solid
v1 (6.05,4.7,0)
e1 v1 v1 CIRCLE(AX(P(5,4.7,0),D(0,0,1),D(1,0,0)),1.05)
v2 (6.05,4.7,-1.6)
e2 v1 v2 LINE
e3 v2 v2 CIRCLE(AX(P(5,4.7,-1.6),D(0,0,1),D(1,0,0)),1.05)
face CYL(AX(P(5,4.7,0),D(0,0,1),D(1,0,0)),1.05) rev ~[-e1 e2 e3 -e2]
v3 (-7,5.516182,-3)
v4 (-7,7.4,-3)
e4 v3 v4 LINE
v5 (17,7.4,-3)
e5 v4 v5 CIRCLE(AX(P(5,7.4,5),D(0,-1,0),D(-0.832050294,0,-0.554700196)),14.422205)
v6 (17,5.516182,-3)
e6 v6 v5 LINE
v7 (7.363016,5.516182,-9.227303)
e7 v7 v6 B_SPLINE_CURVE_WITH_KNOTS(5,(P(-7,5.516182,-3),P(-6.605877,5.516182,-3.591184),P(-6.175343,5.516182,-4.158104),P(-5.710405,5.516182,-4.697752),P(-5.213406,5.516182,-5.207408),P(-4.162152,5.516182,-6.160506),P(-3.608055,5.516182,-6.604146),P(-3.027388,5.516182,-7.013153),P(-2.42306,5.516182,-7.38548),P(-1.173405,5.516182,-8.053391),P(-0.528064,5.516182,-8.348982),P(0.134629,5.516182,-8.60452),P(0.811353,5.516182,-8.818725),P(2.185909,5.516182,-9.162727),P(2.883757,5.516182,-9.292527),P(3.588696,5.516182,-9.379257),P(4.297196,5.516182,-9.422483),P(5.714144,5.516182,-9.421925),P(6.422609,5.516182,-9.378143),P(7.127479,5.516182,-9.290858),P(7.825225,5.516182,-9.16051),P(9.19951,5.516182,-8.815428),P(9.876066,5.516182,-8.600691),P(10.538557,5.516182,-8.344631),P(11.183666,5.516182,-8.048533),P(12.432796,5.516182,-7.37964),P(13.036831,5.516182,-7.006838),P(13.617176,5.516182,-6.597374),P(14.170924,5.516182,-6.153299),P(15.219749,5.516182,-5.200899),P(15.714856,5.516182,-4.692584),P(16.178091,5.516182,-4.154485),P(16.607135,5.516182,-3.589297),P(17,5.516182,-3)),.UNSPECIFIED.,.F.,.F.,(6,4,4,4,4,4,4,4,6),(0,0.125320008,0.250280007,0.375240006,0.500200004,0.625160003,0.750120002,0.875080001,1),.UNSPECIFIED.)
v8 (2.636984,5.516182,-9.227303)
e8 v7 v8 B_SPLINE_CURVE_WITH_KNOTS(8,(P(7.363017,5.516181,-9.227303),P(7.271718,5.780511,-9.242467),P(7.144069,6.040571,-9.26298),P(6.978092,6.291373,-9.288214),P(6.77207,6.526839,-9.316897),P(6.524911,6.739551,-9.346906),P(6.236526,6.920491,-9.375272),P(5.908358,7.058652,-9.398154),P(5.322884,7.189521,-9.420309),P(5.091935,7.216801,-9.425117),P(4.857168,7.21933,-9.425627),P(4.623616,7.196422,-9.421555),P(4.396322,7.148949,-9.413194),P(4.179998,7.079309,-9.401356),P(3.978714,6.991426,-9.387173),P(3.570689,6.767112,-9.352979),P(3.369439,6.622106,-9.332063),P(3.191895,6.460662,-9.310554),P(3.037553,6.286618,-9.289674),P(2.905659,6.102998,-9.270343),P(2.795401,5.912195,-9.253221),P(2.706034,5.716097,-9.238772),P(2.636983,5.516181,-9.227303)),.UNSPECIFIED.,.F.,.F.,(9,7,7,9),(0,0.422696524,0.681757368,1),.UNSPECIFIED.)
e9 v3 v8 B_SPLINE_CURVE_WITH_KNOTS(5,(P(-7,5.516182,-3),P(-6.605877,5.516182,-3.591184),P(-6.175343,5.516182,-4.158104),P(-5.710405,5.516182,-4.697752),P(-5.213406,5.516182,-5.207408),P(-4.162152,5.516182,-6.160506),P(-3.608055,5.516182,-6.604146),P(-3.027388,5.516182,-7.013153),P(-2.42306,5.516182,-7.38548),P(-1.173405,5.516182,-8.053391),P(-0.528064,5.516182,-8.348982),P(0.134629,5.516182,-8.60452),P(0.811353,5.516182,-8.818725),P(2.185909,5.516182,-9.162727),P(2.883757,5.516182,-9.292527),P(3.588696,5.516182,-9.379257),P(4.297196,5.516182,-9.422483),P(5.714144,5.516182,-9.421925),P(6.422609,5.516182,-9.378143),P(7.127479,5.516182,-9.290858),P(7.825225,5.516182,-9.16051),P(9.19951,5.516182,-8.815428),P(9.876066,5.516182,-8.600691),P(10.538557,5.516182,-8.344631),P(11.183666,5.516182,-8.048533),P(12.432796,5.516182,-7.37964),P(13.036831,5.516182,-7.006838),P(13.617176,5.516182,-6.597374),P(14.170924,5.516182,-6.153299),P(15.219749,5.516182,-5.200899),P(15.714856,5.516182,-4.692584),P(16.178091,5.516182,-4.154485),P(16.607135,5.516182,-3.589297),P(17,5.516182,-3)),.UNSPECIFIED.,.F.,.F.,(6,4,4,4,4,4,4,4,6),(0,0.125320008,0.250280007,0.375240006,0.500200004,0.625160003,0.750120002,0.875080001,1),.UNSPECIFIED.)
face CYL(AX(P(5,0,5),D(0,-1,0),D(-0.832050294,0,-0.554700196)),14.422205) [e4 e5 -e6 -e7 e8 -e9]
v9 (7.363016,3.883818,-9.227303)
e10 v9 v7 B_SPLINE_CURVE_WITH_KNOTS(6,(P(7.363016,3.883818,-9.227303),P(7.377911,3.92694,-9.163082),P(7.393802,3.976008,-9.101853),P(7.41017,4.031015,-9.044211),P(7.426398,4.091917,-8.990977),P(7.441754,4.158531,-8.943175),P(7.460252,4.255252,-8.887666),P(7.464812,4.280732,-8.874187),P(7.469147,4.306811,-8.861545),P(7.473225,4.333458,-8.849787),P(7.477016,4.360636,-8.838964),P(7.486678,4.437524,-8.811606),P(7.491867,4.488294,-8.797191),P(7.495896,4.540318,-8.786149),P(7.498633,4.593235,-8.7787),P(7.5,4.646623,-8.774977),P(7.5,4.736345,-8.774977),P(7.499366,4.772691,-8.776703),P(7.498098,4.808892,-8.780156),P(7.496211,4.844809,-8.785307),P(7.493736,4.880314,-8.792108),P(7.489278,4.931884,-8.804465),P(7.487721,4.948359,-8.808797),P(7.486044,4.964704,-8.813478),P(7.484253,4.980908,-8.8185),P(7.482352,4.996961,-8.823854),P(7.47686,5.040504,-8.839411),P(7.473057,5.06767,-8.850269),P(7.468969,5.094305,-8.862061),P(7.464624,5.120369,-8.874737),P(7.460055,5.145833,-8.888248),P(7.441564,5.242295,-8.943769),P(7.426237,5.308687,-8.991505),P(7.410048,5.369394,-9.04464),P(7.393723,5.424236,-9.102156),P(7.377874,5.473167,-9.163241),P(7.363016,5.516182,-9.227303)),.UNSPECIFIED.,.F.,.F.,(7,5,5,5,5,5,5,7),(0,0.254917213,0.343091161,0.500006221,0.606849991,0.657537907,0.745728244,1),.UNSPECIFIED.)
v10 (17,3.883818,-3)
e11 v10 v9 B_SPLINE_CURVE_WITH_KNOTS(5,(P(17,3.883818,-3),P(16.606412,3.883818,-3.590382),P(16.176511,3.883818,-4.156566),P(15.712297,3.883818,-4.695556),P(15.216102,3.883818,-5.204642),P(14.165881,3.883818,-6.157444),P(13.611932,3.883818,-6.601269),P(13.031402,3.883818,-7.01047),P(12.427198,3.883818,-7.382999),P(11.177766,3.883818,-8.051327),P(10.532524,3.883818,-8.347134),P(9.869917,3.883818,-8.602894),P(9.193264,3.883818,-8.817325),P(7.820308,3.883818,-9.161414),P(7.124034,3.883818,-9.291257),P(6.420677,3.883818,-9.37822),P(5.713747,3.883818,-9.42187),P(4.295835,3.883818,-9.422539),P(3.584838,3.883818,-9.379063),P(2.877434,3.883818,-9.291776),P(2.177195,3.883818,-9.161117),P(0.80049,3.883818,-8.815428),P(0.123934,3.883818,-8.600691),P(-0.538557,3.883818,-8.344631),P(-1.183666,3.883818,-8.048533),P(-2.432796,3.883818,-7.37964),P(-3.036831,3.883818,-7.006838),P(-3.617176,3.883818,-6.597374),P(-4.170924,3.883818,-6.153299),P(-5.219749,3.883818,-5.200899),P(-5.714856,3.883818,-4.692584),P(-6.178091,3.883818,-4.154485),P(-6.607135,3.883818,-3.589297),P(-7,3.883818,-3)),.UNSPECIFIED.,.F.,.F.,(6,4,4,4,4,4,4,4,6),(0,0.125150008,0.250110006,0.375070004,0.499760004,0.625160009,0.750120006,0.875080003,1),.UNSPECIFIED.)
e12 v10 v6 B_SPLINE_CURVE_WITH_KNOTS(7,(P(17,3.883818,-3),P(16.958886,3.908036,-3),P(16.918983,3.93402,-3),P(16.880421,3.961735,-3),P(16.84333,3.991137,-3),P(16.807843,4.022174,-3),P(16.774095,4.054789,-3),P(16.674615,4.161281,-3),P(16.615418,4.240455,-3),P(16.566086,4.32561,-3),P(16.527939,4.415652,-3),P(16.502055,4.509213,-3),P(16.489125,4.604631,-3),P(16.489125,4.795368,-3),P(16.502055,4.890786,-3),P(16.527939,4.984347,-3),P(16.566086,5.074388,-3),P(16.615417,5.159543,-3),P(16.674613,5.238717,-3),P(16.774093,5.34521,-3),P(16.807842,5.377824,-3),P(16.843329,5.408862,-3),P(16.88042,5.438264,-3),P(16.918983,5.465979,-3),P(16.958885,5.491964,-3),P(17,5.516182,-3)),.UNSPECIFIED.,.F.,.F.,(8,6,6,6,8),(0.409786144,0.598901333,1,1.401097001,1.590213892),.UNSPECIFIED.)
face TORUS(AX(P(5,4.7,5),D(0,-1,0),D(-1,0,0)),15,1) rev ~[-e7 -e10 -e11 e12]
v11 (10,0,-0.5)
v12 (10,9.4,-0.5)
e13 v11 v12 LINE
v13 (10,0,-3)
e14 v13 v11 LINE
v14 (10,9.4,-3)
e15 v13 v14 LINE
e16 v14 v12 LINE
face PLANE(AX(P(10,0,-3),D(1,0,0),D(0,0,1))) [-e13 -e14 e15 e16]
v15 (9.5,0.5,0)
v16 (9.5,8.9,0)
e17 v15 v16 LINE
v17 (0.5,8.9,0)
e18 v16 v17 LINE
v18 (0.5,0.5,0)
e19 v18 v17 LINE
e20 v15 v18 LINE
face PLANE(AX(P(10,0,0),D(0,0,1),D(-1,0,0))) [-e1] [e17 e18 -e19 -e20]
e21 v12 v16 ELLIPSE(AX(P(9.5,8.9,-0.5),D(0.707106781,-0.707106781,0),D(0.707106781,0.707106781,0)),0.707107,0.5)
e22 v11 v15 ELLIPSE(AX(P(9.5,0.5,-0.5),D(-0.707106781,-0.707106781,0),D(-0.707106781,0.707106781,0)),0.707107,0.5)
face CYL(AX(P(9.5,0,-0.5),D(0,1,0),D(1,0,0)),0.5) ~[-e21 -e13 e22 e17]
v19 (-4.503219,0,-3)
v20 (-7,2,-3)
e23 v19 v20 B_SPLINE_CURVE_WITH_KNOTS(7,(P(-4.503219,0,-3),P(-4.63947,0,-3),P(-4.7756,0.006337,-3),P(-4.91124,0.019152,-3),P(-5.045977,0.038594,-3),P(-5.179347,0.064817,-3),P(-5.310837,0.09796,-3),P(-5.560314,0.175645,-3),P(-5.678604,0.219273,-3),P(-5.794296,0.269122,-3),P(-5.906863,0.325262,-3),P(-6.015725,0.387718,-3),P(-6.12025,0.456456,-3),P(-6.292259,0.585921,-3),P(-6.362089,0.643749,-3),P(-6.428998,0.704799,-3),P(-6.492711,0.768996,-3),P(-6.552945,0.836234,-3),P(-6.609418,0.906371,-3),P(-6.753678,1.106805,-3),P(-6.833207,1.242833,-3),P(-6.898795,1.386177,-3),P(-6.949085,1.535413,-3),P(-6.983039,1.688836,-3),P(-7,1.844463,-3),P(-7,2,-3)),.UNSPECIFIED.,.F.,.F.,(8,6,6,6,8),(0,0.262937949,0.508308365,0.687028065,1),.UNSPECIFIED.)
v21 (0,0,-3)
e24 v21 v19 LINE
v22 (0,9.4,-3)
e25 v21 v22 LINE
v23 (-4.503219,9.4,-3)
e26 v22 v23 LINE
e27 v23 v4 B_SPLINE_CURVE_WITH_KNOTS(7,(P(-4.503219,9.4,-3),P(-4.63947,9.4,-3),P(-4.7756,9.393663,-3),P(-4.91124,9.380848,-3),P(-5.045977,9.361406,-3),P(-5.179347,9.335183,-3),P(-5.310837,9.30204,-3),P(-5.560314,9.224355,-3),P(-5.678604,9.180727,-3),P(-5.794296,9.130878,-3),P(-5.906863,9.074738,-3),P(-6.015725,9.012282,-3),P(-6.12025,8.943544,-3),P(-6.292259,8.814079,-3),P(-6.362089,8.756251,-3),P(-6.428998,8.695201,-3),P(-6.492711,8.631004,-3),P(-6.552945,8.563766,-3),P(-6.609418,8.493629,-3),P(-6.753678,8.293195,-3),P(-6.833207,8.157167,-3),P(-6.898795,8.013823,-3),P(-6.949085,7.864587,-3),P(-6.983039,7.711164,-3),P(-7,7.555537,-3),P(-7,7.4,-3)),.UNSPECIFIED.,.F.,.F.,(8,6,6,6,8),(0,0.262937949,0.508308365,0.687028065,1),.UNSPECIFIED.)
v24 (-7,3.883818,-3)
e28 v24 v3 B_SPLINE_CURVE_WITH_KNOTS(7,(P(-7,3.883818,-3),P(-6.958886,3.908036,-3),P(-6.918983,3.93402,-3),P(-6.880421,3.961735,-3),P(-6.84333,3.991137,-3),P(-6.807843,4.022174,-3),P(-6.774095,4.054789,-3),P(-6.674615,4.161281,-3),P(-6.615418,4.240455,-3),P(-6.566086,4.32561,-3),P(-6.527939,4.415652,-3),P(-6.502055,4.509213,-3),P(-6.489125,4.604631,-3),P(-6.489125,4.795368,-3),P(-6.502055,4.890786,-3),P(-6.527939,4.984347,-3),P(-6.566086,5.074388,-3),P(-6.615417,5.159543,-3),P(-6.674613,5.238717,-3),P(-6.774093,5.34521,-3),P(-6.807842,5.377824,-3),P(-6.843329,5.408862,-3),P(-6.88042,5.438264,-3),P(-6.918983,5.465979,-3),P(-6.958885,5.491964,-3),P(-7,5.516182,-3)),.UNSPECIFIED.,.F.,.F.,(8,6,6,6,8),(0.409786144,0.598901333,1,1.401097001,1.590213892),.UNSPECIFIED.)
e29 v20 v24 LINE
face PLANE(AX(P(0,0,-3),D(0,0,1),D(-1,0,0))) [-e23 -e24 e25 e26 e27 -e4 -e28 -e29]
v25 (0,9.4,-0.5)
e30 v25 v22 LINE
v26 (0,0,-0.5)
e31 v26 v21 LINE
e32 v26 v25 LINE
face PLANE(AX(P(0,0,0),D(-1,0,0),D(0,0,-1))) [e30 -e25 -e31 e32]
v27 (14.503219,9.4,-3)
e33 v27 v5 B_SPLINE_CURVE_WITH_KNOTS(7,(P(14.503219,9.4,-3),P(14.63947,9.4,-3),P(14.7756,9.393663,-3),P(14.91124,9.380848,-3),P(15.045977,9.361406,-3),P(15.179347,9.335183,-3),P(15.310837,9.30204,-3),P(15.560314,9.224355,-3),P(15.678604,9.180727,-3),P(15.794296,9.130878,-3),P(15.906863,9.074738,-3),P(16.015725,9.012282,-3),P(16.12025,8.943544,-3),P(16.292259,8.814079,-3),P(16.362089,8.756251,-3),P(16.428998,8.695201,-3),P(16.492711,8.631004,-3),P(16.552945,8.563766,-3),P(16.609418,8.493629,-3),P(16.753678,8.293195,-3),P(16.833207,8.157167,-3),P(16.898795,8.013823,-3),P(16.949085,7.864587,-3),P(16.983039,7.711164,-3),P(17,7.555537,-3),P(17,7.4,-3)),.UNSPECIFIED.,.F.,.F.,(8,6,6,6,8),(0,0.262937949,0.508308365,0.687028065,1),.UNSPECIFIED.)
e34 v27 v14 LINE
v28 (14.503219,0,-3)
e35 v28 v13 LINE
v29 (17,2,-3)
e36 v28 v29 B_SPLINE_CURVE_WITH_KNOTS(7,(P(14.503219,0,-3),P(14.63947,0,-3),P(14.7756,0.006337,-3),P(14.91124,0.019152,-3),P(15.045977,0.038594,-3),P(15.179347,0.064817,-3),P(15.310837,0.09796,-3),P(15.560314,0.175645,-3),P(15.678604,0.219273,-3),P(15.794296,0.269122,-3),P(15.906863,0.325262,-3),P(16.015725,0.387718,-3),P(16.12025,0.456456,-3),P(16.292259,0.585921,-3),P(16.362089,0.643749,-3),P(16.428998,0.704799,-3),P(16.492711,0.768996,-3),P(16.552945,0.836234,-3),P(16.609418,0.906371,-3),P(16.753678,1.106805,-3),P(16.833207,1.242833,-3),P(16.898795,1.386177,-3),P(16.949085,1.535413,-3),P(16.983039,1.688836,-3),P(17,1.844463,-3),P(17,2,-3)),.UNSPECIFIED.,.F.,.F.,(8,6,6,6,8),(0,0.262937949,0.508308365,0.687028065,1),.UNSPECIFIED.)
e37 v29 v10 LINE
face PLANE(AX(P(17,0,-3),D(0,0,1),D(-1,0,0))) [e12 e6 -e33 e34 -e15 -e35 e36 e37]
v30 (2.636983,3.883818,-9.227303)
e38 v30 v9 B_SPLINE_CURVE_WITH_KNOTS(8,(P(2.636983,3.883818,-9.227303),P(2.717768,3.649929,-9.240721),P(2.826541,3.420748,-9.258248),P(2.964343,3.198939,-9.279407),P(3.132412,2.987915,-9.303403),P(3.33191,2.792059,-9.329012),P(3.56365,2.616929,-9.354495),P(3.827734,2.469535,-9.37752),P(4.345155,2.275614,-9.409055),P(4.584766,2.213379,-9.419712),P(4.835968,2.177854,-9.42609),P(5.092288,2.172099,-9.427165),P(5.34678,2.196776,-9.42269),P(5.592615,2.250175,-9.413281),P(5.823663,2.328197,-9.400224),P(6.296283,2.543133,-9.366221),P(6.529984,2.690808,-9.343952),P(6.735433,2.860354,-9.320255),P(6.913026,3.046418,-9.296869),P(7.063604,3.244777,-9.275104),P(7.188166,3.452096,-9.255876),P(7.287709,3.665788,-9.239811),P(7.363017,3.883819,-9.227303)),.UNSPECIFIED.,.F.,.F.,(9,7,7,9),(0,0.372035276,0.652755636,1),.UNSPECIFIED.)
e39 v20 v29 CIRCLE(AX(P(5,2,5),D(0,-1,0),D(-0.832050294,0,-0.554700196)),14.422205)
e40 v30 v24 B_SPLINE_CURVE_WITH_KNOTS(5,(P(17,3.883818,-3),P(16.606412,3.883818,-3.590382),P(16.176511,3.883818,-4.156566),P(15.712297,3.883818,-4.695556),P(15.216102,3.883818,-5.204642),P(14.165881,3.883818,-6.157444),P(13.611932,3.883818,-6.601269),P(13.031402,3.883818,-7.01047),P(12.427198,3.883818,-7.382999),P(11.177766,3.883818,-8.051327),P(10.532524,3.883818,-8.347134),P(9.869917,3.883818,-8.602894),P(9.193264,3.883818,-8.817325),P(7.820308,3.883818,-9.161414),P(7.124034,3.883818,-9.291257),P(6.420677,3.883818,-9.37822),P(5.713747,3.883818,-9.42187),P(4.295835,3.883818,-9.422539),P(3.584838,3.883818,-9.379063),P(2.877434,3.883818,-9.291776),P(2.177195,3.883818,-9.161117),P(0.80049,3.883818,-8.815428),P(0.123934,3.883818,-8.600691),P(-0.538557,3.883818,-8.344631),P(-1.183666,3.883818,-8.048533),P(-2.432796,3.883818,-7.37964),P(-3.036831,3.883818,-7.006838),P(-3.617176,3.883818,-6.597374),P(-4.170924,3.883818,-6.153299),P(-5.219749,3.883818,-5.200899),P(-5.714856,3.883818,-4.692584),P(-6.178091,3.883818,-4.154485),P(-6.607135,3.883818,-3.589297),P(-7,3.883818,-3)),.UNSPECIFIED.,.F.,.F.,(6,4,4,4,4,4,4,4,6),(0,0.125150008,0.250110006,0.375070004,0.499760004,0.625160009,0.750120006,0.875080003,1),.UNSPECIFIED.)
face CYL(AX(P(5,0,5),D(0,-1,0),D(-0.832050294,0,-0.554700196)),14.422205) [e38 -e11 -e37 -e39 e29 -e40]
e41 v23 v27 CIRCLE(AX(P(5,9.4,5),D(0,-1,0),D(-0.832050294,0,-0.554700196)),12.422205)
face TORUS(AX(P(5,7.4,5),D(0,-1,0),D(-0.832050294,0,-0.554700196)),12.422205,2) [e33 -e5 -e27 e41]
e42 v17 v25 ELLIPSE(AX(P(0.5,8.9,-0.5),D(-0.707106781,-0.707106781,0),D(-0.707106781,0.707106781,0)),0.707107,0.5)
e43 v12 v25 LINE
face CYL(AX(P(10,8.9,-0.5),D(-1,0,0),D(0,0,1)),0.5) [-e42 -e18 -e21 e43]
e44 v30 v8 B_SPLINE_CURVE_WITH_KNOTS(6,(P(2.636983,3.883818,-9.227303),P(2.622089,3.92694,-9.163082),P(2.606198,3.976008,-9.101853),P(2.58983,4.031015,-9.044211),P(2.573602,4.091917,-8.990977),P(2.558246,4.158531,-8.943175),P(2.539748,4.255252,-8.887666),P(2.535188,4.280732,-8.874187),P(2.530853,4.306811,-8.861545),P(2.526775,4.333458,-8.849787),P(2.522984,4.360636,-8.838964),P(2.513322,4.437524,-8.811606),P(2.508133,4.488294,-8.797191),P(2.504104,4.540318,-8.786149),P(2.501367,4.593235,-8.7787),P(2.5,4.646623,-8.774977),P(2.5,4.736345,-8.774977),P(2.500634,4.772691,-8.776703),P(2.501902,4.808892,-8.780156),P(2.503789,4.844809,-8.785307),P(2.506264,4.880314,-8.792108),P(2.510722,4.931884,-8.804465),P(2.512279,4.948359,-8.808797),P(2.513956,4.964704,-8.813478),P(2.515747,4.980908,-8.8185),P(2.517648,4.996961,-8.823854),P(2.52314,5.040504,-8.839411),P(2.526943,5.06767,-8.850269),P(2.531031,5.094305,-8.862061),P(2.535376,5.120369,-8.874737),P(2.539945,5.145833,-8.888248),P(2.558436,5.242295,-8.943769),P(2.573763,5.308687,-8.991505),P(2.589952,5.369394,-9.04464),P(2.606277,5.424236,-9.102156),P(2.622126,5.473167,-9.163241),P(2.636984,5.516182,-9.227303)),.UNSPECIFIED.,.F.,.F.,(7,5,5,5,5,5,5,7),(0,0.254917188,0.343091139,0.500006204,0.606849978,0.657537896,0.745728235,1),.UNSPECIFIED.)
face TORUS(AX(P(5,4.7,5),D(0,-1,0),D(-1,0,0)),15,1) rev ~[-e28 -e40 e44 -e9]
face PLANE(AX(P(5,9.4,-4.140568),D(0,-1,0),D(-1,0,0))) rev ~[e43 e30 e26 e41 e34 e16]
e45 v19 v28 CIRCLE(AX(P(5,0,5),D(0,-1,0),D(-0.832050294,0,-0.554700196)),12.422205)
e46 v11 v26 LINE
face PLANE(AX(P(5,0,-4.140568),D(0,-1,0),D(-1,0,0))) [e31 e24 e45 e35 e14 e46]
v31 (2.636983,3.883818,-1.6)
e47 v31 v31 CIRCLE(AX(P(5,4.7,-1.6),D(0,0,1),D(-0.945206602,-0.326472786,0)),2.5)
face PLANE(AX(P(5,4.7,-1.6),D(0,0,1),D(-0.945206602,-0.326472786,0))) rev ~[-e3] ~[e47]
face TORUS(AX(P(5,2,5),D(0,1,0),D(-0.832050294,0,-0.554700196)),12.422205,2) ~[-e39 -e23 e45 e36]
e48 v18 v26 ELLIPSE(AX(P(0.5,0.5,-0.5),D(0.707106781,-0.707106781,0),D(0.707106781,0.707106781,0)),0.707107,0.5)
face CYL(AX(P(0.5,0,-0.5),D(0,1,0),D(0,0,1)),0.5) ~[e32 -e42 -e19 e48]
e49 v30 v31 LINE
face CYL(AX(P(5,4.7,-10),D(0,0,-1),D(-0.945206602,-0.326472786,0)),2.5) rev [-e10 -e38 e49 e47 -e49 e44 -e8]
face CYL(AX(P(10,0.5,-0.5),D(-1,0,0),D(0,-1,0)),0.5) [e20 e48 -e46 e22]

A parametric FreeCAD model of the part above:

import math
import FreeCAD as App
import Part
import Sketcher


def edges_at(feature, points):
    """Names of the edges that pass closest to the given points."""
    edges = feature.Shape.Edges
    near = lambda p: min(range(len(edges)), key=lambda i: edges[i].distToShape(Part.Vertex(*p))[0])
    return sorted({f"Edge{near(p) + 1}" for p in points})

doc = App.newDocument("Part")
body = doc.addObject("PartDesign::Body", "Body")

sketch1 = body.newObject("Sketcher::SketchObject", "Sketch")
sketch1.AttachmentSupport = (doc.getObject("XZ_Plane"), [""])
sketch1.MapMode = "FlatFace"
sketch1.addGeometry([
    Part.ArcOfCircle(Part.Circle(App.Vector(5, 5, 0), App.Vector(0, 0, 1), 14.422205), math.radians(-146.309932), math.radians(-33.690068)),
    Part.LineSegment(App.Vector(-7, -3, 0), App.Vector(0, -3, 0)),
    Part.LineSegment(App.Vector(0, -3, 0), App.Vector(0, 0, 0)),
    Part.LineSegment(App.Vector(0, 0, 0), App.Vector(10, 0, 0)),
    Part.LineSegment(App.Vector(10, 0, 0), App.Vector(10, -3, 0)),
    Part.LineSegment(App.Vector(10, -3, 0), App.Vector(17, -3, 0)),
], False)
sketch1.addConstraint([
    Sketcher.Constraint("Coincident", 0, 1, 1, 1),
    Sketcher.Constraint("Coincident", 1, 2, 2, 1),
    Sketcher.Constraint("Coincident", 2, 2, 3, 1),
    Sketcher.Constraint("Coincident", 3, 2, 4, 1),
    Sketcher.Constraint("Coincident", 4, 2, 5, 1),
    Sketcher.Constraint("Coincident", 5, 2, 0, 2),
    Sketcher.Constraint("Horizontal", 1),
    Sketcher.Constraint("Vertical", 2),
    Sketcher.Constraint("Horizontal", 3),
    Sketcher.Constraint("Vertical", 4),
    Sketcher.Constraint("Horizontal", 5),
    Sketcher.Constraint("Coincident", 2, 2, -1, 1),
    Sketcher.Constraint("Horizontal", 1, 2, 4, 2),
    Sketcher.Constraint("Equal", 1, 5),
    Sketcher.Constraint("DistanceX", 1, 1, 1, 2, 7.0),
    Sketcher.Constraint("DistanceX", 3, 1, 3, 2, 10.0),
    Sketcher.Constraint("DistanceY", 2, 1, 2, 2, 3.0),
    Sketcher.Constraint("DistanceY", -1, 1, 0, 3, 5.0),
])
pad1 = body.newObject("PartDesign::Pad", "Pad")
pad1.Profile = sketch1
pad1.Length = 9.4
pad1.Reversed = True

sketch2 = body.newObject("Sketcher::SketchObject", "Sketch001")
sketch2.AttachmentSupport = (doc.getObject("XY_Plane"), [""])
sketch2.MapMode = "FlatFace"
sketch2.AttachmentOffset = App.Placement(App.Vector(0, 0, 5), App.Rotation())
sketch2.addGeometry(Part.Circle(App.Vector(-10, 4.7, 0), App.Vector(0, 0, 1), 1), False)
sketch2.addGeometry(Part.LineSegment(App.Vector(5, 4.7, 0), App.Vector(5, -5.3, 0)), True)
sketch2.addConstraint([
    Sketcher.Constraint("Vertical", 1),
    Sketcher.Constraint("Horizontal", 0, 3, 1, 1),
    Sketcher.Constraint("Diameter", 0, 2.0),
    Sketcher.Constraint("DistanceY", 1, 2, 1, 1, 10.0),
    Sketcher.Constraint("DistanceX", 0, 3, -1, 1, 10.0),
    Sketcher.Constraint("DistanceX", -1, 1, 1, 1, 5.0),
    Sketcher.Constraint("DistanceY", -1, 1, 0, 3, 4.7),
])
groove = body.newObject("PartDesign::Groove", "Groove")
groove.Profile = sketch2
groove.ReferenceAxis = (sketch2, ["Axis0"])
groove.Angle = 360

sketch3 = body.newObject("Sketcher::SketchObject", "Sketch002")
sketch3.AttachmentSupport = (doc.getObject("XY_Plane"), [""])
sketch3.MapMode = "FlatFace"
sketch3.addGeometry(Part.Circle(App.Vector(5, 4.7, 0), App.Vector(0, 0, 1), 1.05), False)
sketch3.addConstraint([
    Sketcher.Constraint("Diameter", 0, 2.1),
    Sketcher.Constraint("DistanceX", -1, 1, 0, 3, 5.0),
    Sketcher.Constraint("DistanceY", -1, 1, 0, 3, 4.7),
])
pocket1 = body.newObject("PartDesign::Pocket", "Pocket")
pocket1.Profile = sketch3
pocket1.Type = "ThroughAll"

sketch4 = body.newObject("Sketcher::SketchObject", "Sketch003")
sketch4.AttachmentSupport = (doc.getObject("XY_Plane"), [""])
sketch4.MapMode = "FlatFace"
sketch4.AttachmentOffset = App.Placement(App.Vector(0, 0, -10), App.Rotation())
sketch4.addGeometry(Part.Circle(App.Vector(5, 4.7, 0), App.Vector(0, 0, 1), 2.5), False)
sketch4.addConstraint([
    Sketcher.Constraint("Diameter", 0, 5.0),
    Sketcher.Constraint("DistanceX", -1, 1, 0, 3, 5.0),
    Sketcher.Constraint("DistanceY", -1, 1, 0, 3, 4.7),
])
pocket2 = body.newObject("PartDesign::Pocket", "Pocket001")
pocket2.Profile = sketch4
pocket2.Length = 8.4
pocket2.Reversed = True
doc.recompute()

fillet = body.newObject("PartDesign::Fillet", "Fillet")
fillet.Base = (pocket2, edges_at(pocket2, [
    (10, 4.7, 0),
    (0, 4.7, 0),
    (5, 9.4, 0),
    (5, 0, 0),
]))
fillet.Radius = 0.5
doc.recompute()

fillet2 = body.newObject("PartDesign::Fillet", "Fillet001")
fillet2.Base = (fillet, edges_at(fillet, [(5, 0, -9.422), (5, 9.4, -9.422)]))
fillet2.Radius = 2

doc.recompute()
